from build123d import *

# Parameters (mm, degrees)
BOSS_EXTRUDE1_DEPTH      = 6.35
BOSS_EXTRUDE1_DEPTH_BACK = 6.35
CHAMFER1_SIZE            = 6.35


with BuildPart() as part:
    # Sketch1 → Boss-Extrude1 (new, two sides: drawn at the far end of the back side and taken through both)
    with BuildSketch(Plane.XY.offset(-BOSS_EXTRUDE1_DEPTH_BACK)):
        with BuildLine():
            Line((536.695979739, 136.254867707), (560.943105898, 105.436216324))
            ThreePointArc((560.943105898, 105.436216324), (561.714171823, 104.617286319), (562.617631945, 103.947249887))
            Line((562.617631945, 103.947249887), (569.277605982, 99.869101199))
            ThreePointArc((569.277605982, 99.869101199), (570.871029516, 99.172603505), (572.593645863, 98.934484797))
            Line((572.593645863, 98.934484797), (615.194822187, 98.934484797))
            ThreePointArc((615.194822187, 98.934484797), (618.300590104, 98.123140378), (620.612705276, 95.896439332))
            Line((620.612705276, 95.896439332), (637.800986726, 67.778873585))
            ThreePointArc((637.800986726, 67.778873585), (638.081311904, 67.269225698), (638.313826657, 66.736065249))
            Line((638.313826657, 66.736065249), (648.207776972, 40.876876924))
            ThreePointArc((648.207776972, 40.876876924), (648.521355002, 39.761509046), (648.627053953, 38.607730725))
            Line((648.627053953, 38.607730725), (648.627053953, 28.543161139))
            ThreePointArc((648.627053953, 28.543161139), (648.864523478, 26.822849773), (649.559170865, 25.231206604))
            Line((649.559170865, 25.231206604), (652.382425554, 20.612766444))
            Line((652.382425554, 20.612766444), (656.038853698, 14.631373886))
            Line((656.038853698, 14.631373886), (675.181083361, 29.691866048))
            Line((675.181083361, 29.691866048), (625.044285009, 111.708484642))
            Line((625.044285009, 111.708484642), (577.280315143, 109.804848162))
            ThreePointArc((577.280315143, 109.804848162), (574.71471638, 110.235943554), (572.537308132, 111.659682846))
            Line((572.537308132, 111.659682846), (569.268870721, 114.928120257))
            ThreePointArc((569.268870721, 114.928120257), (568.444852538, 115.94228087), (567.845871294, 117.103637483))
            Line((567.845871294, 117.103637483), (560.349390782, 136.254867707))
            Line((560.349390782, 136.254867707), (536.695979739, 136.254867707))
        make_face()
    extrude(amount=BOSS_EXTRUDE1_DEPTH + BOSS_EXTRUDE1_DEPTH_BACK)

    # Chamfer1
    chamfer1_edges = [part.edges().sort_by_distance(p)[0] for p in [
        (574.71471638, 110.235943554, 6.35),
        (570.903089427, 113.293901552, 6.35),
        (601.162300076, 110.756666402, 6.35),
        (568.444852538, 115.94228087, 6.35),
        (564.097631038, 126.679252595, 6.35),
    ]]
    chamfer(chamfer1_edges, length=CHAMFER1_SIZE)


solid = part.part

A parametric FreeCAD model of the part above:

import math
import FreeCAD as App
import Part
import Sketcher

V = App.Vector
Q = App.Units.Quantity


def edges_at(feature, points):
    """Names of the edges that pass closest to the given points."""
    edges = feature.Shape.Edges
    near = lambda p: min(range(len(edges)), key=lambda i: edges[i].distToShape(Part.Vertex(*p))[0])
    return sorted({f"Edge{near(p) + 1}" for p in points})

doc = App.newDocument("Part")
body = doc.addObject("PartDesign::Body", "Body")

# Sketch on XY plane
sketch1 = body.newObject("Sketcher::SketchObject", "Sketch")
sketch1.AttachmentSupport = (doc.getObject("XY_Plane"), [""])
sketch1.MapMode = "FlatFace"
sketch1.addGeometry([
    Part.LineSegment(V(536.69598, 136.254868, 0), V(560.943106, 105.436216, 0)),  # 0
    Part.ArcOfCircle(Part.Circle(V(565.933672, 109.362633, 0), V(0, 0, 1), 6.35), math.radians(-141.805467), math.radians(-121.480679)),  # 1
    Part.LineSegment(V(562.617632, 103.94725, 0), V(569.277606, 99.869101, 0)),  # 2
    Part.ArcOfCircle(Part.Circle(V(572.593646, 105.284485, 0), V(0, 0, 1), 6.35), math.radians(-121.480679), math.radians(-90)),  # 3
    Part.LineSegment(V(572.593646, 98.934485, 0), V(615.194822, 98.934485, 0)),  # 4
    Part.ArcOfCircle(Part.Circle(V(615.194822, 92.584485, 0), V(0, 0, 1), 6.35), math.radians(31.437465), math.radians(90)),  # 5
    Part.LineSegment(V(620.612705, 95.896439, 0), V(637.800987, 67.778874, 0)),  # 6
    Part.ArcOfCircle(Part.Circle(V(632.383104, 64.466919, 0), V(0, 0, 1), 6.35), math.radians(20.937285), math.radians(31.437465)),  # 7
    Part.LineSegment(V(638.313827, 66.736065, 0), V(648.207777, 40.876877, 0)),  # 8
    Part.ArcOfCircle(Part.Circle(V(642.277054, 38.607731, 0), V(0, 0, 1), 6.35), math.radians(0), math.radians(20.937285)),  # 9
    Part.LineSegment(V(648.627054, 38.607731, 0), V(648.627054, 28.543161, 0)),  # 10
    Part.ArcOfCircle(Part.Circle(V(654.977054, 28.543161, 0), V(0, 0, 1), 6.35), math.radians(180), math.radians(211.437465)),  # 11
    Part.LineSegment(V(649.559171, 25.231207, 0), V(652.382426, 20.612766, 0)),  # 12
    Part.LineSegment(V(652.382426, 20.612766, 0), V(656.038854, 14.631374, 0)),  # 13
    Part.LineSegment(V(656.038854, 14.631374, 0), V(675.181083, 29.691866, 0)),  # 14
    Part.LineSegment(V(675.181083, 29.691866, 0), V(625.044285, 111.708485, 0)),  # 15
    Part.LineSegment(V(625.044285, 111.708485, 0), V(577.280315, 109.804848, 0)),  # 16
    Part.ArcOfCircle(Part.Circle(V(577.027436, 116.149811, 0), V(0, 0, 1), 6.35), math.radians(-135), math.radians(-87.71768)),  # 17
    Part.LineSegment(V(572.537308, 111.659683, 0), V(569.268871, 114.92812, 0)),  # 18
    Part.ArcOfCircle(Part.Circle(V(573.758999, 119.418248, 0), V(0, 0, 1), 6.35), math.radians(-158.622838), math.radians(-135)),  # 19
    Part.LineSegment(V(567.845871, 117.103637, 0), V(560.349391, 136.254868, 0)),  # 20
    Part.LineSegment(V(560.349391, 136.254868, 0), V(536.69598, 136.254868, 0)),  # 21
], False)
sketch1.addConstraint([
    Sketcher.Constraint("Coincident", 0, 2, 1, 1),
    Sketcher.Constraint("Coincident", 1, 2, 2, 1),
    Sketcher.Constraint("Coincident", 2, 2, 3, 1),
    Sketcher.Constraint("Coincident", 3, 2, 4, 1),
    Sketcher.Constraint("Coincident", 4, 2, 5, 2),
    Sketcher.Constraint("Coincident", 5, 1, 6, 1),
    Sketcher.Constraint("Coincident", 6, 2, 7, 2),
    Sketcher.Constraint("Coincident", 7, 1, 8, 1),
    Sketcher.Constraint("Coincident", 8, 2, 9, 2),
    Sketcher.Constraint("Coincident", 9, 1, 10, 1),
    Sketcher.Constraint("Coincident", 10, 2, 11, 1),
    Sketcher.Constraint("Coincident", 11, 2, 12, 1),
    Sketcher.Constraint("Coincident", 12, 2, 13, 1),
    Sketcher.Constraint("Coincident", 13, 2, 14, 1),
    Sketcher.Constraint("Coincident", 14, 2, 15, 1),
    Sketcher.Constraint("Coincident", 15, 2, 16, 1),
    Sketcher.Constraint("Coincident", 16, 2, 17, 2),
    Sketcher.Constraint("Coincident", 17, 1, 18, 1),
    Sketcher.Constraint("Coincident", 18, 2, 19, 2),
    Sketcher.Constraint("Coincident", 19, 1, 20, 1),
    Sketcher.Constraint("Coincident", 20, 2, 21, 1),
    Sketcher.Constraint("Coincident", 21, 2, 0, 1),
    Sketcher.Constraint("Horizontal", 4),
    Sketcher.Constraint("Vertical", 10),
    Sketcher.Constraint("Horizontal", 21),
    Sketcher.Constraint("Radius", 1, Q("0.25 in")),
    Sketcher.Constraint("Radius", 3, Q("0.25 in")),
    Sketcher.Constraint("Radius", 5, Q("0.25 in")),
    Sketcher.Constraint("Radius", 7, Q("0.25 in")),
    Sketcher.Constraint("Radius", 9, Q("0.25 in")),
    Sketcher.Constraint("Radius", 11, Q("0.25 in")),
    Sketcher.Constraint("Radius", 17, Q("0.25 in")),
    Sketcher.Constraint("Radius", 19, Q("0.25 in")),
    Sketcher.Constraint("DistanceX", 21, 2, 21, 1, 23.653411),
    Sketcher.Constraint("DistanceY", 10, 2, 10, 1, 10.06457),
    Sketcher.Constraint("DistanceX", -1, 1, 19, 3, 573.758999),
    Sketcher.Constraint("DistanceY", -1, 1, 2, 2, 99.869101),
    Sketcher.Constraint("DistanceY", 1, 2, 19, 3, 15.470998),
    Sketcher.Constraint("DistanceX", 0, 2, 2, 2, 8.3345),
    Sketcher.Constraint("DistanceX", 5, 1, 7, 3, 11.770398),
    Sketcher.Constraint("DistanceX", 11, 3, 13, 2, 1.0618),
    Sketcher.Constraint("DistanceY", 12, 2, 14, 2, 9.0791),
    Sketcher.Constraint("DistanceY", 4, 2, 15, 2, 12.774),
    Sketcher.Constraint("DistanceX", 15, 2, 6, 2, 12.756702),
    Sketcher.Constraint("DistanceY", 16, 2, 19, 3, 9.6134),
    Sketcher.Constraint("DistanceY", 3, 3, 17, 1, 6.375198),
    Sketcher.Constraint("DistanceX", 1, 3, 18, 2, 3.335199),
    Sketcher.Constraint("DistanceX", 19, 1, 18, 2, 1.422999),
    Sketcher.Constraint("Distance", 2, 7.809389),
    Sketcher.Constraint("Distance", 13, 7.010458),
    Sketcher.Constraint("Distance", 14, 24.356588),
    Sketcher.Constraint("Distance", 16, 47.80189),
    Sketcher.Constraint("Distance", 18, 4.622269),
    Sketcher.Constraint("DistanceX", 4, 1, 4, 2, 42.601176),
    Sketcher.Constraint("DistanceX", -1, 1, 1, 3, 565.933672),
    Sketcher.Constraint("DistanceY", -1, 1, 7, 3, 64.466919),
    Sketcher.Constraint("DistanceY", -1, 1, 9, 3, 38.607731),
    Sketcher.Constraint("DistanceY", -1, 1, 11, 3, 28.543161),
    Sketcher.Constraint("DistanceY", -1, 1, 17, 3, 116.149811),
    Sketcher.Constraint("DistanceY", -1, 1, 19, 3, 119.418248),
    Sketcher.Constraint("DistanceX", -1, 1, 1, 2, 562.617632),
    Sketcher.Constraint("DistanceY", -1, 1, 5, 1, 95.896439),
    Sketcher.Constraint("DistanceY", -1, 1, 9, 1, 38.607731),
    Sketcher.Constraint("DistanceX", -1, 1, 11, 2, 649.559171),
    Sketcher.Constraint("DistanceX", -1, 1, 17, 1, 572.537308),
    Sketcher.Constraint("DistanceX", -1, 1, 20, 2, 560.349391),
    Sketcher.Constraint("DistanceX", 1, 3, 5, 3, 49.26115),
    Sketcher.Constraint("DistanceX", 7, 3, 9, 3, 9.89395),
    Sketcher.Constraint("DistanceX", 2, 2, 3, 2, 3.31604),
    Sketcher.Constraint("DistanceX", 6, 2, 7, 1, 0.51284),
    Sketcher.Constraint("DistanceX", 7, 1, 8, 2, 9.89395),
    Sketcher.Constraint("DistanceY", 12, 2, 11, 2, 4.61844),
    Sketcher.Constraint("DistanceX", 12, 2, 11, 3, 2.594628),
    Sketcher.Constraint("DistanceY", 19, 1, 20, 2, 19.15123),
])
pad1 = body.newObject("PartDesign::Pad", "Pad")
pad1.Profile = sketch1
pad1.Type = "TwoLengths"
pad1.Length = Q("0.25 in")
pad1.Length2 = Q("0.25 in")
doc.recompute()

chamfer = body.newObject("PartDesign::Chamfer", "Chamfer")
chamfer.Base = (pad1, edges_at(pad1, [
    (574.715, 110.236, 6.35),
    (570.903, 113.294, 6.35),
    (601.162, 110.757, 6.35),
    (568.445, 115.942, 6.35),
    (564.098, 126.679, 6.35),
]))
chamfer.Size = Q("0.25 in")

doc.recompute()
